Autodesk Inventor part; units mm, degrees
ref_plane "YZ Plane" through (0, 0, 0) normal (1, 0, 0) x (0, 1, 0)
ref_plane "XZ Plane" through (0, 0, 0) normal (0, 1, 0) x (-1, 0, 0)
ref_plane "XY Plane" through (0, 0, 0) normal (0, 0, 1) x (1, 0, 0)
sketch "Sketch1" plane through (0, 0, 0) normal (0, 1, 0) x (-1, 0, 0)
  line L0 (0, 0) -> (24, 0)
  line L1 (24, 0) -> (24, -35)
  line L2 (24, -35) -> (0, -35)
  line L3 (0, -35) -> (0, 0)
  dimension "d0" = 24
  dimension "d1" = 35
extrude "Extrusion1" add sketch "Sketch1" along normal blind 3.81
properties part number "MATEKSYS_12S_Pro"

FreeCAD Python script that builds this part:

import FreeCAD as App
import Part
import Sketcher

V = App.Vector


def add_polygon(sketch, points):
    """Adds a closed chain of lines whose ends are joined by coincident constraints."""
    first, n = sketch.GeometryCount, len(points)
    for a, b in zip(points, points[1:] + points[:1]):
        sketch.addGeometry(Part.LineSegment(App.Vector(*a, 0), App.Vector(*b, 0)), False)
    for i in range(n):
        sketch.addConstraint(Sketcher.Constraint("Coincident", first + i, 2, first + (i + 1) % n, 1))

doc = App.newDocument("Part")
params = doc.addObject("Spreadsheet::Sheet", "Params")
for row, (alias, value) in enumerate([
    ("sketch1_width", "24 mm"),
    ("sketch1_height", "35 mm"),
    ("pad1_length", "3.81 mm"),
], start=1):
    params.set(f"A{row}", alias)
    params.set(f"B{row}", "=" + value)
    params.setAlias(f"B{row}", alias)

body = doc.addObject("PartDesign::Body", "Body")

sketch1 = body.newObject("Sketcher::SketchObject", "Sketch")
sketch1.AttachmentSupport = (doc.getObject("XZ_Plane"), [""])
sketch1.MapMode = "FlatFace"
add_polygon(sketch1, [(-24, 0), (0, 0), (0, -35), (-24, -35)])
sketch1.addConstraint([
    Sketcher.Constraint("Horizontal", 0),
    Sketcher.Constraint("Vertical", 1),
    Sketcher.Constraint("Horizontal", 2),
    Sketcher.Constraint("Vertical", 3),
    Sketcher.Constraint("Coincident", 0, 2, -1, 1),
    Sketcher.Constraint("DistanceX", 0, 1, 0, 2, 24.0),
    Sketcher.Constraint("DistanceY", 1, 2, 1, 1, 35.0),
])
sketch1.setExpression("Constraints[9]", "Params.sketch1_width")
sketch1.setExpression("Constraints[10]", "Params.sketch1_height")
pad1 = body.newObject("PartDesign::Pad", "Pad")
pad1.Profile = sketch1
pad1.setExpression("Length", "Params.pad1_length")
pad1.Reversed = True

doc.recompute()
